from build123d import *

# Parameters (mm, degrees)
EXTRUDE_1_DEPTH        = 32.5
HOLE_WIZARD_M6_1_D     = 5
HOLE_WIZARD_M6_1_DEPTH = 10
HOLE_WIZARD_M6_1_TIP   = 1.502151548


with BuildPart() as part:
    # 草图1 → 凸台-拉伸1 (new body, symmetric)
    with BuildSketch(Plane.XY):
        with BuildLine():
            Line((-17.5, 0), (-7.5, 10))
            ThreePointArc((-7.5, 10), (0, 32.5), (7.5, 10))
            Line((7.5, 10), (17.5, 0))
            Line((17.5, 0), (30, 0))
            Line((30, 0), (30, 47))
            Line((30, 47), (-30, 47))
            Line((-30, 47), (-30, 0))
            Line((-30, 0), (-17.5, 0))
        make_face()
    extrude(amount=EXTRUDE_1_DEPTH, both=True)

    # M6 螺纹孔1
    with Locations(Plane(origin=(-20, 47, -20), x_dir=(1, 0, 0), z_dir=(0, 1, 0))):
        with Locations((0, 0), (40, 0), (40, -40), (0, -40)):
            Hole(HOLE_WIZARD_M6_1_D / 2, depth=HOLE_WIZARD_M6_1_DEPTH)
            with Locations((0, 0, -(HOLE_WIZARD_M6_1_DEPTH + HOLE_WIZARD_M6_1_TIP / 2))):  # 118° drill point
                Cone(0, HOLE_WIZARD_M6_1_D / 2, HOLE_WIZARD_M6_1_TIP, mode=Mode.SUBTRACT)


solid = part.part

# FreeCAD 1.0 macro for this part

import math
import FreeCAD as App
import Part
import Sketcher

V = App.Vector
Q = App.Units.Quantity

doc = App.newDocument("Part")
body = doc.addObject("PartDesign::Body", "Body")

sketch1 = body.newObject("Sketcher::SketchObject", "Sketch")
sketch1.AttachmentSupport = (doc.getObject("XY_Plane"), [""])
sketch1.MapMode = "FlatFace"
sketch1.addGeometry(Part.LineSegment(V(-18, 0, 0), V(-8, 10, 0)), False)
sketch1.addGeometry(Part.ArcOfCircle(Part.Circle(V(0, 20, 0), V(0, 0, 1), 12), math.radians(-53), math.radians(233)), False)
sketch1.addGeometry(Part.LineSegment(V(8, 10, 0), V(18, 0, 0)), False)
sketch1.addGeometry(Part.LineSegment(V(18, 0, 0), V(30, 0, 0)), False)
sketch1.addGeometry(Part.LineSegment(V(30, 0, 0), V(30, 47, 0)), False)
sketch1.addGeometry(Part.LineSegment(V(30, 47, 0), V(-30, 47, 0)), False)
sketch1.addGeometry(Part.LineSegment(V(-30, 47, 0), V(-30, 0, 0)), False)
sketch1.addGeometry(Part.LineSegment(V(-30, 0, 0), V(-18, 0, 0)), False)
sketch1.addConstraint(Sketcher.Constraint("Coincident", 0, 2, 1, 2))
sketch1.addConstraint(Sketcher.Constraint("Coincident", 1, 1, 2, 1))
sketch1.addConstraint(Sketcher.Constraint("Coincident", 2, 2, 3, 1))
sketch1.addConstraint(Sketcher.Constraint("Coincident", 3, 2, 4, 1))
sketch1.addConstraint(Sketcher.Constraint("Coincident", 4, 2, 5, 1))
sketch1.addConstraint(Sketcher.Constraint("Coincident", 5, 2, 6, 1))
sketch1.addConstraint(Sketcher.Constraint("Coincident", 6, 2, 7, 1))
sketch1.addConstraint(Sketcher.Constraint("Coincident", 7, 2, 0, 1))
sketch1.addConstraint(Sketcher.Constraint("Horizontal", 3))
sketch1.addConstraint(Sketcher.Constraint("Vertical", 4))
sketch1.addConstraint(Sketcher.Constraint("Horizontal", 5))
sketch1.addConstraint(Sketcher.Constraint("Vertical", 6))
sketch1.addConstraint(Sketcher.Constraint("Horizontal", 7))
sketch1.addConstraint(Sketcher.Constraint("Symmetric", 3, 2, 6, 2, -1, 1))
sketch1.addConstraint(Sketcher.Constraint("Symmetric", 0, 2, 1, 1, -2))
sketch1.addConstraint(Sketcher.Constraint("Symmetric", 2, 2, 7, 2, -2))
sketch1.addConstraint(Sketcher.Constraint("Perpendicular", 0, 2))
sketch1.addConstraint(Sketcher.Constraint("Radius", 1, Q("12.5 mm")))
sketch1.addConstraint(Sketcher.Constraint("DistanceX", 5, 2, 5, 1, Q("60 mm")))
sketch1.addConstraint(Sketcher.Constraint("DistanceY", 4, 1, 4, 2, Q("47 mm")))
sketch1.addConstraint(Sketcher.Constraint("DistanceX", 3, 1, 3, 2, Q("12.5 mm")))
sketch1.addConstraint(Sketcher.Constraint("DistanceY", -1, 1, 1, 3, Q("20 mm")))
pad1 = body.newObject("PartDesign::Pad", "Pad")
pad1.Profile = sketch1
pad1.Length = 65
pad1.Midplane = True

sketch2 = body.newObject("Sketcher::SketchObject", "Sketch001")
sketch2.AttachmentSupport = (doc.getObject("XZ_Plane"), [""])
sketch2.MapMode = "FlatFace"
sketch2.AttachmentOffset = App.Placement(V(0, 0, -47), App.Rotation())
sketch2.addGeometry(Part.Circle(V(-20, -20, 0), V(0, 0, 1), 2.5), False)
sketch2.addGeometry(Part.Circle(V(20, -20, 0), V(0, 0, 1), 2.5), False)
sketch2.addGeometry(Part.Circle(V(20, 20, 0), V(0, 0, 1), 2.5), False)
sketch2.addGeometry(Part.Circle(V(-20, 20, 0), V(0, 0, 1), 2.5), False)
sketch2.addConstraint(Sketcher.Constraint("Equal", 0, 1))
sketch2.addConstraint(Sketcher.Constraint("Equal", 1, 2))
sketch2.addConstraint(Sketcher.Constraint("Equal", 2, 3))
sketch2.addConstraint(Sketcher.Constraint("Symmetric", 0, 3, 2, 3, -1, 1))
sketch2.addConstraint(Sketcher.Constraint("Symmetric", 1, 3, 3, 3, -1, 1))
sketch2.addConstraint(Sketcher.Constraint("Symmetric", 0, 3, 1, 3, -2))
sketch2.addConstraint(Sketcher.Constraint("Diameter", 0, Q("5 mm")))
sketch2.addConstraint(Sketcher.Constraint("DistanceX", 0, 3, -1, 1, Q("20 mm")))
sketch2.addConstraint(Sketcher.Constraint("DistanceY", 0, 3, -1, 1, Q("20 mm")))
doc.recompute()
hole = body.newObject("PartDesign::Hole", "Hole")
hole.Profile = sketch2
hole.ThreadType = "None"
hole.Diameter = 5
hole.DepthType = "Dimension"
hole.Depth = 10
hole.DrillPoint = "Angled"
hole.DrillPointAngle = 118
hole.Reversed = True

doc.recompute()
